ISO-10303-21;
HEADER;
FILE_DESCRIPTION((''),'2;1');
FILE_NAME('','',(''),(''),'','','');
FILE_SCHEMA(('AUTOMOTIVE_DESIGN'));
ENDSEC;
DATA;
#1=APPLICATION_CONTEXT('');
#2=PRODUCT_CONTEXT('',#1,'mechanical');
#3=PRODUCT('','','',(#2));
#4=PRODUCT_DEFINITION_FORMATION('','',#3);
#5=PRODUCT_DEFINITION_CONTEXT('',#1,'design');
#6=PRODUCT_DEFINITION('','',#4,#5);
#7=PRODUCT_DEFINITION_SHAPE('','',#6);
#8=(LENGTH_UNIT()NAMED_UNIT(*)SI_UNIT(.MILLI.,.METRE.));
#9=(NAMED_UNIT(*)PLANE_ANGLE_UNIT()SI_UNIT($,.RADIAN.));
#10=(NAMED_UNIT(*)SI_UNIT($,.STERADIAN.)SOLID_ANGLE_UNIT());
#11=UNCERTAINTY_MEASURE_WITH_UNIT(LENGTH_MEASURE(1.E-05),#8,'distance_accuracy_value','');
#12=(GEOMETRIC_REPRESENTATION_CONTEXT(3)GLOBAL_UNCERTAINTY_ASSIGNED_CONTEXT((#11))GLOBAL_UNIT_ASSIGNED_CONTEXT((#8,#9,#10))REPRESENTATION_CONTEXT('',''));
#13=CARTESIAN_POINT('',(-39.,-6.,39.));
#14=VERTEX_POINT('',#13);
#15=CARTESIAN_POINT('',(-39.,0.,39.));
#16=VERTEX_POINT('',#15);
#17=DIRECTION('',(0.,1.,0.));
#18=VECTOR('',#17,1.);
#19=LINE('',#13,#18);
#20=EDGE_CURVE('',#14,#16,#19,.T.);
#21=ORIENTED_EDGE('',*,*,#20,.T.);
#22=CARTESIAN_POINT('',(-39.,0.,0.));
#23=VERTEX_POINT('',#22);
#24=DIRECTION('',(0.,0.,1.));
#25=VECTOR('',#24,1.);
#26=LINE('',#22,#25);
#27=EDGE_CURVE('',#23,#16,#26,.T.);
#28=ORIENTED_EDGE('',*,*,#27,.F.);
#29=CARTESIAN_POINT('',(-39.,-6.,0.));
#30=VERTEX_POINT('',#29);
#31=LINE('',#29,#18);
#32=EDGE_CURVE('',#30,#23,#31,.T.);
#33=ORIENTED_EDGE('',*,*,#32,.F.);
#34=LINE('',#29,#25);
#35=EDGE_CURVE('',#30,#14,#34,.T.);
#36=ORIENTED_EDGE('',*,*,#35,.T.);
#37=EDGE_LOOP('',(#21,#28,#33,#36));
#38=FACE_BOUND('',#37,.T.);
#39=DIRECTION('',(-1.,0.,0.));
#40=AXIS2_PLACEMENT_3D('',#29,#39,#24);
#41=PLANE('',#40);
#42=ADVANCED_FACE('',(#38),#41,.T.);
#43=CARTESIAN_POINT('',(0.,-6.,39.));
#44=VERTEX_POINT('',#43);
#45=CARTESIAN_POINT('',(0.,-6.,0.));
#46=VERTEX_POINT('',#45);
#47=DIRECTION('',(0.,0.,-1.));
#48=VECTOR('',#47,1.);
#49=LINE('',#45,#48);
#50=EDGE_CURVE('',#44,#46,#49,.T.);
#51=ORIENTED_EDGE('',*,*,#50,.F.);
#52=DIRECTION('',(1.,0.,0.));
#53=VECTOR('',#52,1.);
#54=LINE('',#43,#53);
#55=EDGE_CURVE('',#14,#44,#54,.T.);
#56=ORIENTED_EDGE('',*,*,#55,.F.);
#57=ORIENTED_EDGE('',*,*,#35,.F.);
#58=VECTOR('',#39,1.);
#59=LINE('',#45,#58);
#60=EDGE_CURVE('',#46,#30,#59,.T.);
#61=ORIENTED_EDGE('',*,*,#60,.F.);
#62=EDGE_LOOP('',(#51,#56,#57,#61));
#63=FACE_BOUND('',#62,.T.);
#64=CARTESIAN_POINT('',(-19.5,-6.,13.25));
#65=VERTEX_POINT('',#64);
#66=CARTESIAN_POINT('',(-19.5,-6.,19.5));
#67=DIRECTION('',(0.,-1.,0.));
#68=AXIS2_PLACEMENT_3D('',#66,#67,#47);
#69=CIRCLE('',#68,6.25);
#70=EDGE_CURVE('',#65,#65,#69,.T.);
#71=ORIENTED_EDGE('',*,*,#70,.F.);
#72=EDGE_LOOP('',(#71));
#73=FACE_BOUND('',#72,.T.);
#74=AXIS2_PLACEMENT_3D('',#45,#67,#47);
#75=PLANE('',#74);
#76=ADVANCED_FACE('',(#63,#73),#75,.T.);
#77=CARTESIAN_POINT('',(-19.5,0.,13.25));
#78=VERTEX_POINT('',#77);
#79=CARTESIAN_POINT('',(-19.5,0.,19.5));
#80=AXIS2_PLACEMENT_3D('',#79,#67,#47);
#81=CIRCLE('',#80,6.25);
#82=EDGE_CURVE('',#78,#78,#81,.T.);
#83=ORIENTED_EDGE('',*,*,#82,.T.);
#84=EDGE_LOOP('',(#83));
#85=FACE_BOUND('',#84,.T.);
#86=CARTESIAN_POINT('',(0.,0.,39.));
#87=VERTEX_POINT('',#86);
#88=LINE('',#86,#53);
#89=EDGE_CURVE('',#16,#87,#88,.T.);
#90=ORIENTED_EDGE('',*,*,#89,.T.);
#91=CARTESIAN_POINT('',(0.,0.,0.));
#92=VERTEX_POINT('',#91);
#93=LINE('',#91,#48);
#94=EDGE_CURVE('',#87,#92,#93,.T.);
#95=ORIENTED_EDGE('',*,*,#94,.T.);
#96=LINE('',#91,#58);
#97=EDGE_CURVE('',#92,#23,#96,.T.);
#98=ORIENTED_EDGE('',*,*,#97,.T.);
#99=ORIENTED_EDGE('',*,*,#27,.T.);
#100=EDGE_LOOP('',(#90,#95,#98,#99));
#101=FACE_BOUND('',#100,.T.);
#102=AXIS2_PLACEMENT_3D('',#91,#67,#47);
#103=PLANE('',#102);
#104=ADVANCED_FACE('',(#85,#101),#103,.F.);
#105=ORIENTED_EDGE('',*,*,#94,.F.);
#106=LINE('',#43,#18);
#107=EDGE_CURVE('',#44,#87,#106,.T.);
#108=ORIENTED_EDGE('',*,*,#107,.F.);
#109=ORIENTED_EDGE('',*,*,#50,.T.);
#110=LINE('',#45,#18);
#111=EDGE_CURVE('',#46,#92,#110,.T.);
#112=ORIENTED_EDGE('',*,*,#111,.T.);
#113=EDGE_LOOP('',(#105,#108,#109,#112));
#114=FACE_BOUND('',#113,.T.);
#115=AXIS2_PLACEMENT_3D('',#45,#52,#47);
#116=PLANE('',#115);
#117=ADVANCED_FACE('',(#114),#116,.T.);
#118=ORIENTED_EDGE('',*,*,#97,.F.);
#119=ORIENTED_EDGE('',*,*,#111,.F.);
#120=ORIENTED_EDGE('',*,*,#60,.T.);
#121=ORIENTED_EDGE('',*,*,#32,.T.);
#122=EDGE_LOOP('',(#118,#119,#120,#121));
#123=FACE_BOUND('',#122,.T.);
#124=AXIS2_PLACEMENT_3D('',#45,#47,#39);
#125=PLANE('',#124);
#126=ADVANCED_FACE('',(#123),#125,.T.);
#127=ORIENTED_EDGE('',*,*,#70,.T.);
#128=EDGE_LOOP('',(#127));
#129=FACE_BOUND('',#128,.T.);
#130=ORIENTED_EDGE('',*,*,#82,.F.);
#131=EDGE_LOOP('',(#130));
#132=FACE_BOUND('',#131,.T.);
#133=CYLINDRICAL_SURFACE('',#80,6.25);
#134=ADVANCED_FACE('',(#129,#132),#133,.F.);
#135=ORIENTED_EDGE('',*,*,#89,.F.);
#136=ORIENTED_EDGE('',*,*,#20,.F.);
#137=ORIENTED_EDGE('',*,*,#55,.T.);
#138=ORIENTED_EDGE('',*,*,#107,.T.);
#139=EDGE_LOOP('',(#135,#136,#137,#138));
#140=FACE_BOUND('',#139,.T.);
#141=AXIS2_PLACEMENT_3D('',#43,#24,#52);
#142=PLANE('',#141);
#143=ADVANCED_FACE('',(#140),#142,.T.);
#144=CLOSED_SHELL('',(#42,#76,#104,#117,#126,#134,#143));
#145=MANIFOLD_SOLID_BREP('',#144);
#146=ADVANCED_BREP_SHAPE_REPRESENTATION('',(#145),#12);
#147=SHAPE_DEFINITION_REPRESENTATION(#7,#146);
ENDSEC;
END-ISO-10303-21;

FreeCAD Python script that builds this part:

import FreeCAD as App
import Part
import Sketcher


def add_polygon(sketch, points):
    """Adds a closed chain of lines whose ends are joined by coincident constraints."""
    first, n = sketch.GeometryCount, len(points)
    for a, b in zip(points, points[1:] + points[:1]):
        sketch.addGeometry(Part.LineSegment(App.Vector(*a, 0), App.Vector(*b, 0)), False)
    for i in range(n):
        sketch.addConstraint(Sketcher.Constraint("Coincident", first + i, 2, first + (i + 1) % n, 1))

doc = App.newDocument("Part")
body = doc.addObject("PartDesign::Body", "Body")

# Sketch on XZ plane
sketch1 = doc.addObject("Sketcher::SketchObject", "Sketch")
body.addObject(sketch1)
sketch1.AttachmentSupport = (doc.XZ_Plane, [""])
sketch1.MapMode = "FlatFace"
add_polygon(sketch1, [(-39, 0), (-39, 39), (0, 39), (0, 0)])  # lines 0-3
sketch1.addConstraint([
    Sketcher.Constraint("Vertical", 0),
    Sketcher.Constraint("Horizontal", 1),
    Sketcher.Constraint("Vertical", 2),
    Sketcher.Constraint("Horizontal", 3),
    Sketcher.Constraint("Coincident", 2, 2, -1, 1),
    Sketcher.Constraint("Equal", 3, 0),
    Sketcher.Constraint("DistanceX", 1, 1, 1, 2, 39.0),
])
pad1 = doc.addObject("PartDesign::Pad", "Pad")
body.addObject(pad1)
pad1.Profile = sketch1
pad1.Length = 6

# Sketch on XZ plane
sketch2 = doc.addObject("Sketcher::SketchObject", "Sketch001")
body.addObject(sketch2)
sketch2.AttachmentSupport = (doc.XZ_Plane, [""])
sketch2.MapMode = "FlatFace"
sketch2.AttachmentOffset = App.Placement(App.Vector(0, 0, 6), App.Rotation())
sketch2.addGeometry(Part.Circle(App.Vector(-20, 20, 0), App.Vector(0, 0, 1), 6), False)
sketch2.addConstraint([
    Sketcher.Constraint("Diameter", 0, 12.5),
    Sketcher.Constraint("DistanceX", 0, 3, -1, 1, 19.5),
    Sketcher.Constraint("DistanceY", -1, 1, 0, 3, 19.5),
])
pocket1 = doc.addObject("PartDesign::Pocket", "Pocket")
body.addObject(pocket1)
pocket1.Profile = sketch2
pocket1.Length = 6

doc.recompute()
